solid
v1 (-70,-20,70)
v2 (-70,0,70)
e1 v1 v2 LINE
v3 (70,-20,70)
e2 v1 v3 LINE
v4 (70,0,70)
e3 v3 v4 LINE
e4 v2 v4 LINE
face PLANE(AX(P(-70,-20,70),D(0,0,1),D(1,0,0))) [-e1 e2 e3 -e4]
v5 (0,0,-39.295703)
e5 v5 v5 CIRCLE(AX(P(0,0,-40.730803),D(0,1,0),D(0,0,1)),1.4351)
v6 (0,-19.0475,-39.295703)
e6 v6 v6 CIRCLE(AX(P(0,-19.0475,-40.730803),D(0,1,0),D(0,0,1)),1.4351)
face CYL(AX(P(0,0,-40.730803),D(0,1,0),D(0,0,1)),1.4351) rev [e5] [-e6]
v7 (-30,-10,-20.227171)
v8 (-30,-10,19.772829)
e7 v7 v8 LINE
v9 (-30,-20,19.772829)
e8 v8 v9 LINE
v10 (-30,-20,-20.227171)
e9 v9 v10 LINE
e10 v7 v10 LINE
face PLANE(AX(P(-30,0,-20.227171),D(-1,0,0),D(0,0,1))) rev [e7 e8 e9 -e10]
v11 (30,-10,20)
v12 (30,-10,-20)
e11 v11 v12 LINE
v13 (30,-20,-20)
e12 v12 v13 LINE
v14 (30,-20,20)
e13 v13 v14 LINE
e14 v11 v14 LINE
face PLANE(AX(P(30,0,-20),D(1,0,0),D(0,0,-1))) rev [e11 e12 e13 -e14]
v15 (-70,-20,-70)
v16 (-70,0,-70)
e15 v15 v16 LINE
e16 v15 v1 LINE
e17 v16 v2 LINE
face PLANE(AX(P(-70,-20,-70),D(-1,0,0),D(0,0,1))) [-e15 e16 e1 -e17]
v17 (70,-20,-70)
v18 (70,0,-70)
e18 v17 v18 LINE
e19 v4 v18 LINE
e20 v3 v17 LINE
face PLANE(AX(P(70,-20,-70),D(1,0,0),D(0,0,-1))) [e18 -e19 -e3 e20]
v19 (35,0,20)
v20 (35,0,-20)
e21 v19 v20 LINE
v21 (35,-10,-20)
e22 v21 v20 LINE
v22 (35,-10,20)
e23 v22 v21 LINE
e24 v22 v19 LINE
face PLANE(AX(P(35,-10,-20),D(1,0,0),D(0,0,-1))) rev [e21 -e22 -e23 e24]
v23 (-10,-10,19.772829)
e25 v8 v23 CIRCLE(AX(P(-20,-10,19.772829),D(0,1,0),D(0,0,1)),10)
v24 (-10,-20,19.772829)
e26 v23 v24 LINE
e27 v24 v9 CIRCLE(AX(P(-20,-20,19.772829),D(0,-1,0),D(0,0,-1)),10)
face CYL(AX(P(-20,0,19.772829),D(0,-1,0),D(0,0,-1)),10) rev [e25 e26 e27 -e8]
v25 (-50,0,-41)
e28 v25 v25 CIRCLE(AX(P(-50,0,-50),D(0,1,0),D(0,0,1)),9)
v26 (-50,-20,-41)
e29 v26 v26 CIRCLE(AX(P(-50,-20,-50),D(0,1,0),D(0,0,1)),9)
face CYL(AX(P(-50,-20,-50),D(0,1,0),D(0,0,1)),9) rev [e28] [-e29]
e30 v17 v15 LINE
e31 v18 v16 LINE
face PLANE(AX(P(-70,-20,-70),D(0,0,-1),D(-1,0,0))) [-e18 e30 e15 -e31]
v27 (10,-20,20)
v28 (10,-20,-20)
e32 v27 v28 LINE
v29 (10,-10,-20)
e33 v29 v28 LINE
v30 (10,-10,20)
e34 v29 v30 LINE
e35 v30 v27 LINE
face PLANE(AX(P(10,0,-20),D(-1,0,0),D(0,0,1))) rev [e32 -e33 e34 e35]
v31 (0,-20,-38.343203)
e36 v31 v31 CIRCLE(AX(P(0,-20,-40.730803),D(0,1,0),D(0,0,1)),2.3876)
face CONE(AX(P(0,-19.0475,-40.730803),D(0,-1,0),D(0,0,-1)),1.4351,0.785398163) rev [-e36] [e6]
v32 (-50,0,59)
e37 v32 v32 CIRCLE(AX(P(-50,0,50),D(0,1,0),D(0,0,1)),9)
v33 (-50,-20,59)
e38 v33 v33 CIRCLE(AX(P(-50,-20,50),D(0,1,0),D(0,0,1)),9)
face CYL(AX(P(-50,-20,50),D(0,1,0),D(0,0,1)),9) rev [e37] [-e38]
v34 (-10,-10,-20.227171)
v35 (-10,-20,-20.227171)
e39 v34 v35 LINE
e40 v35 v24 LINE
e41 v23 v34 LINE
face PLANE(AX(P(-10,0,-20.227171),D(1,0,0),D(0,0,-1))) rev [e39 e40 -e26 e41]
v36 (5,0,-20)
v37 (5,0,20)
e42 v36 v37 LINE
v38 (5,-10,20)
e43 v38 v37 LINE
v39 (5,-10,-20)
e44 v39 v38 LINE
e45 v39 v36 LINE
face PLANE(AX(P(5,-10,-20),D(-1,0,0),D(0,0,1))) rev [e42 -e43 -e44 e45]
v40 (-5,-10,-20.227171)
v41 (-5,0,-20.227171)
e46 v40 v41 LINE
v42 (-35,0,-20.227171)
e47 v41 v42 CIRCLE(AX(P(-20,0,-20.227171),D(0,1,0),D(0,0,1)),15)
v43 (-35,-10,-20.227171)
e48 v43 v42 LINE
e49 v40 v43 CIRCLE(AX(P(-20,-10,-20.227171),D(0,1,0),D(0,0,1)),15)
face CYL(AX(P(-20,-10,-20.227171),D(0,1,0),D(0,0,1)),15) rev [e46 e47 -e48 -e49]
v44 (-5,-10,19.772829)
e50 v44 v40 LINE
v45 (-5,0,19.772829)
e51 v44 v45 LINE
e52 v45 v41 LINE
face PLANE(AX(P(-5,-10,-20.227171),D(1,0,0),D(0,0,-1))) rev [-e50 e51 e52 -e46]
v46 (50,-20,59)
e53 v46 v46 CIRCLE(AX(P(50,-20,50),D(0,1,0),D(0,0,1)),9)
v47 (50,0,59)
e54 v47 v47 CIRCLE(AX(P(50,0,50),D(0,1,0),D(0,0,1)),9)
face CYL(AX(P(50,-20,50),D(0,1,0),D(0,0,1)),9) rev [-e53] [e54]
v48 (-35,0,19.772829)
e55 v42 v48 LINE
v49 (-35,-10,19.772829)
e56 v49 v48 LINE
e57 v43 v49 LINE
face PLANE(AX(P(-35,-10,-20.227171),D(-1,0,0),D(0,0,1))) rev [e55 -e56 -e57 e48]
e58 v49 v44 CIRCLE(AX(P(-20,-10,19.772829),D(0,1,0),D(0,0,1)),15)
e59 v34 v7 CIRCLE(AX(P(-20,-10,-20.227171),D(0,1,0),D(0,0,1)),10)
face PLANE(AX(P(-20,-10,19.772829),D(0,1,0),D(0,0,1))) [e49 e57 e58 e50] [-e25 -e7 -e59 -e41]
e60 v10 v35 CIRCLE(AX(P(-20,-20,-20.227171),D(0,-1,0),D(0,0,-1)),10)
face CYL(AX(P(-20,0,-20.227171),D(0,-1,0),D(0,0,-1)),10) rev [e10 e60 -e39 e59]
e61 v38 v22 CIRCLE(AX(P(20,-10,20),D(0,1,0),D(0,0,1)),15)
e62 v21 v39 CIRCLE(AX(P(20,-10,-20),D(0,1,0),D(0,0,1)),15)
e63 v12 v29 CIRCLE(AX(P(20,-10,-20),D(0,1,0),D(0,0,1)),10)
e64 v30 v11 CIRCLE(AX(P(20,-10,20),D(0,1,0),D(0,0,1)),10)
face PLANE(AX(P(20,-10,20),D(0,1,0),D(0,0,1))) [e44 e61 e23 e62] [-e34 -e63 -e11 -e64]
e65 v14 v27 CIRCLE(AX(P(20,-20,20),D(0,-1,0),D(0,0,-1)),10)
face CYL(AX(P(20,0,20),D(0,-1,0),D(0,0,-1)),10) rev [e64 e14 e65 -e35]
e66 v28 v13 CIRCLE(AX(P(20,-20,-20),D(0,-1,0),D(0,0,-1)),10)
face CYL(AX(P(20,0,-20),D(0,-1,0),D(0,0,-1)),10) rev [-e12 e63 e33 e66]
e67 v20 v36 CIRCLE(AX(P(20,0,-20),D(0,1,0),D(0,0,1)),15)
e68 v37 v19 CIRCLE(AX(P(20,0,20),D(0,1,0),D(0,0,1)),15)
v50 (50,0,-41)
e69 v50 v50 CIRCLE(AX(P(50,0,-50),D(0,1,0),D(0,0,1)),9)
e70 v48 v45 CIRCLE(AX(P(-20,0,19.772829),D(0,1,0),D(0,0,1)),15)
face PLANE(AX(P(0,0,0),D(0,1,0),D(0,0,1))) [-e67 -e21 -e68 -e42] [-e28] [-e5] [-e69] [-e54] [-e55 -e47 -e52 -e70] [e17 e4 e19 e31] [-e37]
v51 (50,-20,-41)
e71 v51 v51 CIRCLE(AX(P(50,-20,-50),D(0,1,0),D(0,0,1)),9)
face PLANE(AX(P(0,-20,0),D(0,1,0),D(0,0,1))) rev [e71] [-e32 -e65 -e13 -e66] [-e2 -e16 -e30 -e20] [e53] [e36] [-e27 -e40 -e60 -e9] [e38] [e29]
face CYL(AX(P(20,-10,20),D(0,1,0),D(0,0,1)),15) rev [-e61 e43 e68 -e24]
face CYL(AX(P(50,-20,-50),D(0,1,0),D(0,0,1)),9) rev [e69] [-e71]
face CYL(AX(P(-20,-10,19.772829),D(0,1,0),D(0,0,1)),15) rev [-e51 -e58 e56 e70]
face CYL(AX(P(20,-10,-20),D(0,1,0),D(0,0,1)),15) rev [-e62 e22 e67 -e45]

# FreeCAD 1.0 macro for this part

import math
import FreeCAD as App
import Part
import Sketcher

V = App.Vector
Q = App.Units.Quantity


def add_polygon(sketch, points):
    """Adds a closed chain of lines whose ends are joined by coincident constraints."""
    first, n = sketch.GeometryCount, len(points)
    for a, b in zip(points, points[1:] + points[:1]):
        sketch.addGeometry(Part.LineSegment(App.Vector(*a, 0), App.Vector(*b, 0)), False)
    for i in range(n):
        sketch.addConstraint(Sketcher.Constraint("Coincident", first + i, 2, first + (i + 1) % n, 1))

doc = App.newDocument("Part")
body = doc.addObject("PartDesign::Body", "Body")

sketch1 = body.newObject("Sketcher::SketchObject", "Sketch")
sketch1.AttachmentSupport = (doc.getObject("XZ_Plane"), [""])
sketch1.MapMode = "FlatFace"
add_polygon(sketch1, [(-70, -70), (-70, 70), (70, 70), (70, -70)])
sketch1.addGeometry(Part.Circle(V(-50, 50, 0), V(0, 0, 1), 9), False)
sketch1.addGeometry(Part.Circle(V(50, 50, 0), V(0, 0, 1), 9), False)
sketch1.addGeometry(Part.Circle(V(-50, -50, 0), V(0, 0, 1), 9), False)
sketch1.addGeometry(Part.Circle(V(50, -50, 0), V(0, 0, 1), 9), False)
sketch1.addConstraint([
    Sketcher.Constraint("Vertical", 0),
    Sketcher.Constraint("Horizontal", 1),
    Sketcher.Constraint("Vertical", 2),
    Sketcher.Constraint("Horizontal", 3),
    Sketcher.Constraint("Equal", 4, 5),
    Sketcher.Constraint("Equal", 5, 6),
    Sketcher.Constraint("Equal", 6, 7),
    Sketcher.Constraint("Symmetric", 5, 3, 6, 3, -1, 1),
    Sketcher.Constraint("Symmetric", 4, 3, 7, 3, -1, 1),
    Sketcher.Constraint("Symmetric", 0, 2, 2, 2, -1, 1),
    Sketcher.Constraint("Symmetric", 4, 3, 5, 3, -2),
    Sketcher.Constraint("Equal", 3, 0),
    Sketcher.Constraint("Diameter", 4, Q("18 mm")),
    Sketcher.Constraint("DistanceX", 1, 1, 1, 2, Q("140 mm")),
    Sketcher.Constraint("DistanceX", 4, 3, -1, 1, Q("50 mm")),
    Sketcher.Constraint("DistanceY", -1, 1, 4, 3, Q("50 mm")),
])
pad1 = body.newObject("PartDesign::Pad", "Pad")
pad1.Profile = sketch1
pad1.Length = 20

sketch2 = body.newObject("Sketcher::SketchObject", "Sketch001")
sketch2.AttachmentSupport = (doc.getObject("XZ_Plane"), [""])
sketch2.MapMode = "FlatFace"
sketch2.addGeometry([
    Part.LineSegment(V(-5, 20, 0), V(-5, -20, 0)),
    Part.ArcOfCircle(Part.Circle(V(-20, -20, 0), V(0, 0, 1), 15), math.radians(180), math.radians(360)),
    Part.LineSegment(V(-35, -20, 0), V(-35, 20, 0)),
    Part.ArcOfCircle(Part.Circle(V(-20, 20, 0), V(0, 0, 1), 15), math.radians(0), math.radians(180)),
    Part.ArcOfCircle(Part.Circle(V(-20, -20, 0), V(0, 0, 1), 10), math.radians(180), math.radians(360)),
    Part.LineSegment(V(-10, -20, 0), V(-10, 20, 0)),
    Part.ArcOfCircle(Part.Circle(V(-20, 20, 0), V(0, 0, 1), 10), math.radians(0), math.radians(180)),
    Part.LineSegment(V(-30, 20, 0), V(-30, -20, 0)),
    Part.LineSegment(V(35, 20, 0), V(35, -20, 0)),
    Part.ArcOfCircle(Part.Circle(V(20, -20, 0), V(0, 0, 1), 15), math.radians(180), math.radians(360)),
    Part.LineSegment(V(5, -20, 0), V(5, 20, 0)),
    Part.ArcOfCircle(Part.Circle(V(20, 20, 0), V(0, 0, 1), 15), math.radians(0), math.radians(180)),
    Part.LineSegment(V(30, -20, 0), V(30, 20, 0)),
    Part.ArcOfCircle(Part.Circle(V(20, 20, 0), V(0, 0, 1), 10), math.radians(0), math.radians(180)),
    Part.LineSegment(V(10, 20, 0), V(10, -20, 0)),
    Part.ArcOfCircle(Part.Circle(V(20, -20, 0), V(0, 0, 1), 10), math.radians(180), math.radians(360)),
], False)
sketch2.addConstraint([
    Sketcher.Constraint("Tangent", 0, 2, 1, 2),
    Sketcher.Constraint("Tangent", 1, 1, 2, 1),
    Sketcher.Constraint("Tangent", 2, 2, 3, 2),
    Sketcher.Constraint("Tangent", 3, 1, 0, 1),
    Sketcher.Constraint("Tangent", 4, 2, 5, 1),
    Sketcher.Constraint("Tangent", 5, 2, 6, 1),
    Sketcher.Constraint("Tangent", 6, 2, 7, 1),
    Sketcher.Constraint("Tangent", 7, 2, 4, 1),
    Sketcher.Constraint("Tangent", 8, 2, 9, 2),
    Sketcher.Constraint("Tangent", 9, 1, 10, 1),
    Sketcher.Constraint("Tangent", 10, 2, 11, 2),
    Sketcher.Constraint("Tangent", 11, 1, 8, 1),
    Sketcher.Constraint("Tangent", 12, 2, 13, 1),
    Sketcher.Constraint("Tangent", 13, 2, 14, 1),
    Sketcher.Constraint("Tangent", 14, 2, 15, 1),
    Sketcher.Constraint("Tangent", 15, 2, 12, 1),
    Sketcher.Constraint("Vertical", 0),
    Sketcher.Constraint("Vertical", 2),
    Sketcher.Constraint("Vertical", 5),
    Sketcher.Constraint("Vertical", 7),
    Sketcher.Constraint("Vertical", 8),
    Sketcher.Constraint("Vertical", 10),
    Sketcher.Constraint("Vertical", 12),
    Sketcher.Constraint("Vertical", 14),
    Sketcher.Constraint("Coincident", 4, 3, 1, 3),
    Sketcher.Constraint("Coincident", 13, 3, 11, 3),
    Sketcher.Constraint("Equal", 3, 9),
    Sketcher.Constraint("Equal", 6, 13),
    Sketcher.Constraint("Horizontal", 6, 3, 2, 2),
    Sketcher.Constraint("Horizontal", 15, 3, 8, 2),
    Sketcher.Constraint("Equal", 7, 8),
    Sketcher.Constraint("Radius", 1, Q("15 mm")),
    Sketcher.Constraint("Radius", 4, Q("10 mm")),
    Sketcher.Constraint("DistanceY", 0, 2, 0, 1, Q("40 mm")),
    Sketcher.Constraint("DistanceX", 1, 3, -1, 1, Q("20 mm")),
    Sketcher.Constraint("DistanceX", -1, 1, 9, 3, Q("20 mm")),
    Sketcher.Constraint("DistanceY", 9, 3, -1, 1, Q("20 mm")),
    Sketcher.Constraint("DistanceY", 1, 3, -1, 1, Q("20.227171 mm")),
])
pocket1 = body.newObject("PartDesign::Pocket", "Pocket")
pocket1.Profile = sketch2
pocket1.Length = 10
pocket1.Reversed = True

sketch3 = body.newObject("Sketcher::SketchObject", "Sketch002")
sketch3.AttachmentSupport = (doc.getObject("XZ_Plane"), [""])
sketch3.MapMode = "FlatFace"
sketch3.AttachmentOffset = App.Placement(V(0, 0, 20), App.Rotation())
sketch3.addGeometry([
    Part.LineSegment(V(10, 20, 0), V(10, -20, 0)),
    Part.ArcOfCircle(Part.Circle(V(20, -20, 0), V(0, 0, 1), 10), math.radians(180), math.radians(360)),
    Part.LineSegment(V(30, -20, 0), V(30, 20, 0)),
    Part.ArcOfCircle(Part.Circle(V(20, 20, 0), V(0, 0, 1), 10), math.radians(0), math.radians(180)),
    Part.LineSegment(V(-30, 20, 0), V(-30, -20, 0)),
    Part.ArcOfCircle(Part.Circle(V(-20, -20, 0), V(0, 0, 1), 10), math.radians(180), math.radians(360)),
    Part.LineSegment(V(-10, -20, 0), V(-10, 20, 0)),
    Part.ArcOfCircle(Part.Circle(V(-20, 20, 0), V(0, 0, 1), 10), math.radians(0), math.radians(180)),
], False)
sketch3.addConstraint([
    Sketcher.Constraint("Tangent", 0, 2, 1, 1),
    Sketcher.Constraint("Tangent", 1, 2, 2, 1),
    Sketcher.Constraint("Tangent", 2, 2, 3, 1),
    Sketcher.Constraint("Tangent", 3, 2, 0, 1),
    Sketcher.Constraint("Tangent", 4, 2, 5, 1),
    Sketcher.Constraint("Tangent", 5, 2, 6, 1),
    Sketcher.Constraint("Tangent", 6, 2, 7, 1),
    Sketcher.Constraint("Tangent", 7, 2, 4, 1),
    Sketcher.Constraint("Vertical", 0),
    Sketcher.Constraint("Vertical", 2),
    Sketcher.Constraint("Vertical", 4),
    Sketcher.Constraint("Vertical", 6),
    Sketcher.Constraint("Equal", 3, 5),
    Sketcher.Constraint("Equal", 2, 4),
    Sketcher.Constraint("Radius", 1, Q("10 mm")),
    Sketcher.Constraint("DistanceY", 0, 2, 0, 1, Q("40 mm")),
    Sketcher.Constraint("DistanceX", -1, 1, 1, 3, Q("20 mm")),
    Sketcher.Constraint("DistanceY", 1, 3, -1, 1, Q("20 mm")),
    Sketcher.Constraint("DistanceX", 5, 3, -1, 1, Q("20 mm")),
    Sketcher.Constraint("DistanceY", 5, 3, -1, 1, Q("20.227171 mm")),
])
pocket2 = body.newObject("PartDesign::Pocket", "Pocket001")
pocket2.Profile = sketch3
pocket2.Type = "ThroughAll"

sketch4 = body.newObject("Sketcher::SketchObject", "Sketch003")
sketch4.AttachmentSupport = (doc.getObject("YZ_Plane"), [""])
sketch4.MapMode = "FlatFace"
add_polygon(sketch4, [(-20, -40.7), (0, -40.7), (0, -39.3), (-19, -39.3), (-20, -38.3)])
sketch4.addGeometry(Part.LineSegment(V(0, -40.7, 0), V(-20, -40.7, 0)), True)
sketch4.addConstraint([
    Sketcher.Constraint("Horizontal", 0),
    Sketcher.Constraint("Vertical", 1),
    Sketcher.Constraint("Horizontal", 2),
    Sketcher.Constraint("Vertical", 4),
    Sketcher.Constraint("Horizontal", 5),
    Sketcher.Constraint("Coincident", 5, 1, 0, 2),
    Sketcher.Constraint("PointOnObject", 0, 2, -2),
    Sketcher.Constraint("Vertical", 3, 2, 5, 2),
    Sketcher.Constraint("DistanceX", 0, 1, 0, 2, Q("20 mm")),
    Sketcher.Constraint("Angle", 3, Q("135 deg")),
    Sketcher.Constraint("DistanceX", 2, 2, 2, 1, Q("19.0475 mm")),
    Sketcher.Constraint("DistanceY", 1, 1, 1, 2, Q("1.4351 mm")),
    Sketcher.Constraint("DistanceY", 0, 2, -1, 1, Q("40.730803 mm")),
])
groove = body.newObject("PartDesign::Groove", "Groove")
groove.Profile = sketch4
groove.ReferenceAxis = (sketch4, ["Axis0"])
groove.Angle = 360

doc.recompute()
